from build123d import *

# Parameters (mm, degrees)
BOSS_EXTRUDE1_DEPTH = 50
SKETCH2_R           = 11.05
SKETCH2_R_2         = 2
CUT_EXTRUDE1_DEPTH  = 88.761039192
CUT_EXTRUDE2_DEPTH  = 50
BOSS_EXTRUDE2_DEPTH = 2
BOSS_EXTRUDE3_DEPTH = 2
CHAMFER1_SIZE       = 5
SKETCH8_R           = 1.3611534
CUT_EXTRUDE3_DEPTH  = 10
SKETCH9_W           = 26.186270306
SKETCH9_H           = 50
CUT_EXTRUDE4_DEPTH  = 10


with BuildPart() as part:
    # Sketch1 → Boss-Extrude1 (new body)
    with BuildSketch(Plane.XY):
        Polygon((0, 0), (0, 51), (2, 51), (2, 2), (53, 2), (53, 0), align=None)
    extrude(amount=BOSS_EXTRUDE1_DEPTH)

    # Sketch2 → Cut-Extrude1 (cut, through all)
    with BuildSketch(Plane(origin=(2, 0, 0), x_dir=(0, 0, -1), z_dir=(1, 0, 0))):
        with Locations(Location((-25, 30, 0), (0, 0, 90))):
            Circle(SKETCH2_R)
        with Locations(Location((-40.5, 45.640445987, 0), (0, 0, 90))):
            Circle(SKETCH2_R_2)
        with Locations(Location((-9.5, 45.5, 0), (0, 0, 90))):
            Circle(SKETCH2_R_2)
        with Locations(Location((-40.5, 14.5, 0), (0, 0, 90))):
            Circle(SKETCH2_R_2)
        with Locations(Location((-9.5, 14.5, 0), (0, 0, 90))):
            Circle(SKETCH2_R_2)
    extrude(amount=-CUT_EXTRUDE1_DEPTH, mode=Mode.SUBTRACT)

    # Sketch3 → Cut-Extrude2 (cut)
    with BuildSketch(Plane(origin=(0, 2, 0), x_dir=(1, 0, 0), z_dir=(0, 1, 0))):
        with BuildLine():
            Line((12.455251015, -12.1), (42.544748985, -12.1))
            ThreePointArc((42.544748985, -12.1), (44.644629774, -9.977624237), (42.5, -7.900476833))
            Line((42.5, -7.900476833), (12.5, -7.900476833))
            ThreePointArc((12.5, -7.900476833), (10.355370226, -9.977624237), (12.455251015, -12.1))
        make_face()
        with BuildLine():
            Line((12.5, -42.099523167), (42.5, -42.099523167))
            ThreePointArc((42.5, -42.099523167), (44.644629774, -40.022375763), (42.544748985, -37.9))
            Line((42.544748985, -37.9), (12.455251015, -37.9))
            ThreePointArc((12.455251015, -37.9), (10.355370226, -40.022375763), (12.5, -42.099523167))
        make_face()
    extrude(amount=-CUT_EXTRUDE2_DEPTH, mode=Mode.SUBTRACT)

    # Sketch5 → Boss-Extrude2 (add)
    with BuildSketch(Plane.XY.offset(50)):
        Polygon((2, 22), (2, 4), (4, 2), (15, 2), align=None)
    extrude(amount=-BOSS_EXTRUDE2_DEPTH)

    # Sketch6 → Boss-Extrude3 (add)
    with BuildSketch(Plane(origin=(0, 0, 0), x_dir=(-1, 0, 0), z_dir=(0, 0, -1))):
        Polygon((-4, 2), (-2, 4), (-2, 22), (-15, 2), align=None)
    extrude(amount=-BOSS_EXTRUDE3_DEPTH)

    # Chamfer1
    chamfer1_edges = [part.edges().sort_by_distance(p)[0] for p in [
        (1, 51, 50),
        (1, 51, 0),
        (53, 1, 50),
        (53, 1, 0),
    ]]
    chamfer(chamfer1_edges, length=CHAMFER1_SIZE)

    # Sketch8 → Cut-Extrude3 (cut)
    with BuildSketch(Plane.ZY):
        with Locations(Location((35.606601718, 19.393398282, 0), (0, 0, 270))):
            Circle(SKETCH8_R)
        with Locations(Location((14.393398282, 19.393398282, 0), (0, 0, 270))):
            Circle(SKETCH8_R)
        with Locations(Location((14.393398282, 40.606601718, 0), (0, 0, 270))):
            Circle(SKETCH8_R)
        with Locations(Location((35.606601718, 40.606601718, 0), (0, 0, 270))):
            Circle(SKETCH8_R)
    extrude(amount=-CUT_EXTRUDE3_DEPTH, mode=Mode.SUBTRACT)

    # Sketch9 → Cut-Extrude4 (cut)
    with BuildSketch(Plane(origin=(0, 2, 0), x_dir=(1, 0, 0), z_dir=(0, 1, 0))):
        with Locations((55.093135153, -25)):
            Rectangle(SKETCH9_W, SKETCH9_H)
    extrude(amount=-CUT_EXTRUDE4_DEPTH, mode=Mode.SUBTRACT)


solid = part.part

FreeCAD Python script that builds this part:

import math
import FreeCAD as App
import Part
import Sketcher
from FreeCAD import Vector
Q = App.Units.Quantity


def edges_at(feature, points):
    """Names of the edges that pass closest to the given points."""
    edges = feature.Shape.Edges
    near = lambda p: min(range(len(edges)), key=lambda i: edges[i].distToShape(Part.Vertex(*p))[0])
    return sorted({f"Edge{near(p) + 1}" for p in points})


def add_polygon(sketch, points):
    """Adds a closed chain of lines whose ends are joined by coincident constraints."""
    first, n = sketch.GeometryCount, len(points)
    for a, b in zip(points, points[1:] + points[:1]):
        sketch.addGeometry(Part.LineSegment(App.Vector(*a, 0), App.Vector(*b, 0)), False)
    for i in range(n):
        sketch.addConstraint(Sketcher.Constraint("Coincident", first + i, 2, first + (i + 1) % n, 1))

doc = App.newDocument("Part")
body = doc.addObject("PartDesign::Body", "Body")

# Sketch on XY plane
sketch1 = body.newObject("Sketcher::SketchObject", "Sketch")
sketch1.AttachmentSupport = (doc.getObject("XY_Plane"), [""])
sketch1.MapMode = "FlatFace"
add_polygon(sketch1, [(0, 51), (0, 0), (53, 0), (53, 2), (2, 2), (2, 51)])  # lines 0-5
sketch1.addConstraint([
    Sketcher.Constraint("Vertical", 0),
    Sketcher.Constraint("Horizontal", 1),
    Sketcher.Constraint("Vertical", 2),
    Sketcher.Constraint("Horizontal", 3),
    Sketcher.Constraint("Vertical", 4),
    Sketcher.Constraint("Horizontal", 5),
    Sketcher.Constraint("Coincident", 0, 2, -1, 1),
    Sketcher.Constraint("Equal", 3, 0),
    Sketcher.Constraint("Equal", 5, 2),
    Sketcher.Constraint("DistanceX", 1, 1, 1, 2, 53.0),
    Sketcher.Constraint("DistanceX", 3, 2, 3, 1, 51.0),
])
pad1 = body.newObject("PartDesign::Pad", "Pad")
pad1.Profile = sketch1
pad1.Length = 50

# Sketch on YZ plane
sketch2 = body.newObject("Sketcher::SketchObject", "Sketch001")
sketch2.AttachmentSupport = (doc.getObject("YZ_Plane"), [""])
sketch2.MapMode = "FlatFace"
sketch2.AttachmentOffset = App.Placement(Vector(0, 0, 2), App.Rotation())
sketch2.addGeometry([
    Part.Circle(Vector(30, 25, 0), Vector(0, 0, 1), 11.1),  # 0
    Part.Circle(Vector(45.6, 40.5, 0), Vector(0, 0, 1), 2),  # 1
    Part.Circle(Vector(45.5, 9.5, 0), Vector(0, 0, 1), 2),  # 2
    Part.Circle(Vector(14.5, 40.5, 0), Vector(0, 0, 1), 2),  # 3
    Part.Circle(Vector(14.5, 9.5, 0), Vector(0, 0, 1), 2),  # 4
], False)
sketch2.addConstraint([
    Sketcher.Constraint("Equal", 1, 2),
    Sketcher.Constraint("Equal", 2, 3),
    Sketcher.Constraint("Equal", 3, 4),
    Sketcher.Constraint("Horizontal", 1, 3, 3, 3),
    Sketcher.Constraint("Horizontal", 2, 3, 4, 3),
    Sketcher.Constraint("Vertical", 3, 3, 4, 3),
    Sketcher.Constraint("Diameter", 1, 4.0),
    Sketcher.Constraint("Diameter", 0, 22.1),
    Sketcher.Constraint("DistanceX", -1, 1, 0, 3, 30.0),
    Sketcher.Constraint("DistanceY", -1, 1, 0, 3, 25.0),
    Sketcher.Constraint("DistanceY", 2, 3, 1, 3, 31.0),
    Sketcher.Constraint("DistanceX", 3, 3, 2, 3, 31.0),
    Sketcher.Constraint("DistanceY", -1, 1, 1, 3, 40.5),
    Sketcher.Constraint("DistanceX", -1, 1, 2, 3, 45.5),
    Sketcher.Constraint("DistanceX", -1, 1, 1, 3, 45.640446),
])
pocket1 = body.newObject("PartDesign::Pocket", "Pocket")
pocket1.Profile = sketch2
pocket1.Type = "ThroughAll"

# Sketch on XZ plane
sketch3 = body.newObject("Sketcher::SketchObject", "Sketch002")
sketch3.AttachmentSupport = (doc.getObject("XZ_Plane"), [""])
sketch3.MapMode = "FlatFace"
sketch3.AttachmentOffset = App.Placement(Vector(0, 0, -2), App.Rotation())
sketch3.addGeometry([
    Part.LineSegment(Vector(12.5, 12.1, 0), Vector(42.5, 12.1, 0)),  # 0
    Part.ArcOfCircle(Part.Circle(Vector(42.5, 10, 0), Vector(0, 0, 1), 2.1), math.radians(-91), math.radians(90)),  # 1
    Part.LineSegment(Vector(42.5, 7.9, 0), Vector(12.5, 7.9, 0)),  # 2
    Part.ArcOfCircle(Part.Circle(Vector(12.5, 10, 0), Vector(0, 0, 1), 2.1), math.radians(90), math.radians(271)),  # 3
    Part.LineSegment(Vector(12.5, 42.1, 0), Vector(42.5, 42.1, 0)),  # 4
    Part.ArcOfCircle(Part.Circle(Vector(42.5, 40, 0), Vector(0, 0, 1), 2.1), math.radians(-90), math.radians(91)),  # 5
    Part.LineSegment(Vector(42.5, 37.9, 0), Vector(12.5, 37.9, 0)),  # 6
    Part.ArcOfCircle(Part.Circle(Vector(12.5, 40, 0), Vector(0, 0, 1), 2.1), math.radians(89), math.radians(270)),  # 7
], False)
sketch3.addConstraint([
    Sketcher.Constraint("Tangent", 0, 2, 1, 2),
    Sketcher.Constraint("Coincident", 1, 1, 2, 1),
    Sketcher.Constraint("Coincident", 2, 2, 3, 2),
    Sketcher.Constraint("Tangent", 3, 1, 0, 1),
    Sketcher.Constraint("Coincident", 4, 2, 5, 2),
    Sketcher.Constraint("Tangent", 5, 1, 6, 1),
    Sketcher.Constraint("Tangent", 6, 2, 7, 2),
    Sketcher.Constraint("Coincident", 7, 1, 4, 1),
    Sketcher.Constraint("Horizontal", 0),
    Sketcher.Constraint("Horizontal", 2),
    Sketcher.Constraint("Horizontal", 4),
    Sketcher.Constraint("Horizontal", 6),
    Sketcher.Constraint("Equal", 1, 3),
    Sketcher.Constraint("Equal", 3, 5),
    Sketcher.Constraint("Equal", 5, 7),
    Sketcher.Constraint("Vertical", 1, 3, 5, 3),
    Sketcher.Constraint("Vertical", 3, 3, 7, 3),
    Sketcher.Constraint("Vertical", 1, 1, 4, 2),
    Sketcher.Constraint("Radius", 1, 2.1),
    Sketcher.Constraint("DistanceX", 2, 2, 2, 1, 30.0),
    Sketcher.Constraint("DistanceY", -1, 1, 1, 3, 10.0),
    Sketcher.Constraint("DistanceY", -1, 1, 5, 3, 40.0),
    Sketcher.Constraint("DistanceX", -1, 1, 1, 1, 42.5),
    Sketcher.Constraint("DistanceX", 0, 1, 0, 2, 30.089498),
])
pocket2 = body.newObject("PartDesign::Pocket", "Pocket001")
pocket2.Profile = sketch3
pocket2.Length = 50
pocket2.Reversed = True

# Sketch on XY plane
sketch4 = body.newObject("Sketcher::SketchObject", "Sketch003")
sketch4.AttachmentSupport = (doc.getObject("XY_Plane"), [""])
sketch4.MapMode = "FlatFace"
sketch4.AttachmentOffset = App.Placement(Vector(0, 0, 50), App.Rotation())
add_polygon(sketch4, [(2, 22), (2, 4), (4, 2), (15, 2)])  # lines 0-3
sketch4.addConstraint([
    Sketcher.Constraint("Vertical", 0),
    Sketcher.Constraint("Horizontal", 2),
    Sketcher.Constraint("DistanceX", 2, 1, 2, 2, 11.0),
    Sketcher.Constraint("DistanceY", 0, 2, 0, 1, 18.0),
    Sketcher.Constraint("Angle", 1, Q("-45 deg")),
    Sketcher.Constraint("DistanceX", -1, 1, 0, 2, 2.0),
    Sketcher.Constraint("DistanceY", -1, 1, 0, 2, 4.0),
    Sketcher.Constraint("DistanceX", -1, 1, 1, 2, 4.0),
])
pad2 = body.newObject("PartDesign::Pad", "Pad001")
pad2.Profile = sketch4
pad2.Length = 2
pad2.Reversed = True

# Sketch on XY plane
sketch5 = body.newObject("Sketcher::SketchObject", "Sketch004")
sketch5.AttachmentSupport = (doc.getObject("XY_Plane"), [""])
sketch5.MapMode = "FlatFace"
add_polygon(sketch5, [(4, 2), (2, 4), (2, 22), (15, 2)])  # lines 0-3
sketch5.addConstraint([
    Sketcher.Constraint("Vertical", 1),
    Sketcher.Constraint("Horizontal", 3),
    Sketcher.Constraint("DistanceX", 3, 2, 3, 1, 11.0),
    Sketcher.Constraint("DistanceY", 1, 1, 1, 2, 18.0),
    Sketcher.Constraint("Angle", 0, Q("135 deg")),
    Sketcher.Constraint("DistanceX", -1, 1, 0, 2, 2.0),
    Sketcher.Constraint("DistanceY", -1, 1, 0, 2, 4.0),
    Sketcher.Constraint("DistanceX", -1, 1, 2, 2, 15.0),
])
pad3 = body.newObject("PartDesign::Pad", "Pad002")
pad3.Profile = sketch5
pad3.Length = 2
doc.recompute()

chamfer = body.newObject("PartDesign::Chamfer", "Chamfer")
chamfer.Base = (pad3, edges_at(pad3, [
    (1, 51, 50),
    (1, 51, 0),
    (53, 1, 50),
    (53, 1, 0),
]))
chamfer.Size = 5

# Sketch on YZ plane
sketch6 = body.newObject("Sketcher::SketchObject", "Sketch005")
sketch6.AttachmentSupport = (doc.getObject("YZ_Plane"), [""])
sketch6.MapMode = "FlatFace"
sketch6.addGeometry([
    Part.Circle(Vector(19.4, 35.6, 0), Vector(0, 0, 1), 1.4),
    Part.Circle(Vector(19.4, 14.4, 0), Vector(0, 0, 1), 1.4),
    Part.Circle(Vector(40.6, 14.4, 0), Vector(0, 0, 1), 1.4),
    Part.Circle(Vector(40.6, 35.6, 0), Vector(0, 0, 1), 1.4),
], False)
sketch6.addConstraint([
    Sketcher.Constraint("Equal", 0, 1),
    Sketcher.Constraint("Equal", 1, 2),
    Sketcher.Constraint("Equal", 2, 3),
    Sketcher.Constraint("Horizontal", 1, 3, 2, 3),
    Sketcher.Constraint("Horizontal", 0, 3, 3, 3),
    Sketcher.Constraint("Vertical", 0, 3, 1, 3),
    Sketcher.Constraint("Vertical", 2, 3, 3, 3),
    Sketcher.Constraint("Diameter", 0, 2.722307),
    Sketcher.Constraint("DistanceX", -1, 1, 0, 3, 19.393398),
    Sketcher.Constraint("DistanceY", -1, 1, 0, 3, 35.606602),
    Sketcher.Constraint("DistanceY", -1, 1, 1, 3, 14.393398),
    Sketcher.Constraint("DistanceX", -1, 1, 2, 3, 40.606602),
])
pocket3 = body.newObject("PartDesign::Pocket", "Pocket002")
pocket3.Profile = sketch6
pocket3.Length = 10
pocket3.Reversed = True

# Sketch on XZ plane
sketch7 = body.newObject("Sketcher::SketchObject", "Sketch006")
sketch7.AttachmentSupport = (doc.getObject("XZ_Plane"), [""])
sketch7.MapMode = "FlatFace"
sketch7.AttachmentOffset = App.Placement(Vector(0, 0, -2), App.Rotation())
add_polygon(sketch7, [(42, 0), (42, 50), (68, 50), (68, 0)])  # lines 0-3
sketch7.addConstraint([
    Sketcher.Constraint("Vertical", 0),
    Sketcher.Constraint("Horizontal", 1),
    Sketcher.Constraint("Vertical", 2),
    Sketcher.Constraint("Horizontal", 3),
    Sketcher.Constraint("PointOnObject", 2, 2, -1),
    Sketcher.Constraint("DistanceY", 0, 1, 0, 2, 50.0),
    Sketcher.Constraint("DistanceX", -1, 1, 0, 2, 42.0),
    Sketcher.Constraint("DistanceX", 1, 1, 1, 2, 26.18627),
])
pocket4 = body.newObject("PartDesign::Pocket", "Pocket003")
pocket4.Profile = sketch7
pocket4.Length = 10
pocket4.Reversed = True

doc.recompute()
